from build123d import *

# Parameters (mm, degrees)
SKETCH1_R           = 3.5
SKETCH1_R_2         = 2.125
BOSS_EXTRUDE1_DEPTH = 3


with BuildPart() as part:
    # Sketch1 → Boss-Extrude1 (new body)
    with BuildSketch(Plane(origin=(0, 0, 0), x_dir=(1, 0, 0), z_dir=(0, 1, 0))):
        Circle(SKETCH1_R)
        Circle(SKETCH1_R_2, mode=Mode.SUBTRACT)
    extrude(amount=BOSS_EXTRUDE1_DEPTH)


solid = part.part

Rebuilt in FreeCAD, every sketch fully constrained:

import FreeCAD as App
import Part
import Sketcher
from FreeCAD import Vector
Q = App.Units.Quantity

doc = App.newDocument("Part")
body = doc.addObject("PartDesign::Body", "Body")

sketch1 = body.newObject("Sketcher::SketchObject", "Sketch")
sketch1.AttachmentSupport = (doc.getObject("XZ_Plane"), [""])
sketch1.MapMode = "FlatFace"
sketch1.addGeometry([
    Part.Circle(Vector(0, 0, 0), Vector(0, 0, 1), 3.5),
    Part.Circle(Vector(0, 0, 0), Vector(0, 0, 1), 2.1),
], False)
sketch1.addConstraint([
    Sketcher.Constraint("Coincident", 0, 3, -1, 1),
    Sketcher.Constraint("Coincident", 1, 3, -1, 1),
    Sketcher.Constraint("Diameter", 0, Q("7 mm")),
    Sketcher.Constraint("Diameter", 1, Q("4.25 mm")),
])
pad1 = body.newObject("PartDesign::Pad", "Pad")
pad1.Profile = sketch1
pad1.Length = 3
pad1.Reversed = True

doc.recompute()
